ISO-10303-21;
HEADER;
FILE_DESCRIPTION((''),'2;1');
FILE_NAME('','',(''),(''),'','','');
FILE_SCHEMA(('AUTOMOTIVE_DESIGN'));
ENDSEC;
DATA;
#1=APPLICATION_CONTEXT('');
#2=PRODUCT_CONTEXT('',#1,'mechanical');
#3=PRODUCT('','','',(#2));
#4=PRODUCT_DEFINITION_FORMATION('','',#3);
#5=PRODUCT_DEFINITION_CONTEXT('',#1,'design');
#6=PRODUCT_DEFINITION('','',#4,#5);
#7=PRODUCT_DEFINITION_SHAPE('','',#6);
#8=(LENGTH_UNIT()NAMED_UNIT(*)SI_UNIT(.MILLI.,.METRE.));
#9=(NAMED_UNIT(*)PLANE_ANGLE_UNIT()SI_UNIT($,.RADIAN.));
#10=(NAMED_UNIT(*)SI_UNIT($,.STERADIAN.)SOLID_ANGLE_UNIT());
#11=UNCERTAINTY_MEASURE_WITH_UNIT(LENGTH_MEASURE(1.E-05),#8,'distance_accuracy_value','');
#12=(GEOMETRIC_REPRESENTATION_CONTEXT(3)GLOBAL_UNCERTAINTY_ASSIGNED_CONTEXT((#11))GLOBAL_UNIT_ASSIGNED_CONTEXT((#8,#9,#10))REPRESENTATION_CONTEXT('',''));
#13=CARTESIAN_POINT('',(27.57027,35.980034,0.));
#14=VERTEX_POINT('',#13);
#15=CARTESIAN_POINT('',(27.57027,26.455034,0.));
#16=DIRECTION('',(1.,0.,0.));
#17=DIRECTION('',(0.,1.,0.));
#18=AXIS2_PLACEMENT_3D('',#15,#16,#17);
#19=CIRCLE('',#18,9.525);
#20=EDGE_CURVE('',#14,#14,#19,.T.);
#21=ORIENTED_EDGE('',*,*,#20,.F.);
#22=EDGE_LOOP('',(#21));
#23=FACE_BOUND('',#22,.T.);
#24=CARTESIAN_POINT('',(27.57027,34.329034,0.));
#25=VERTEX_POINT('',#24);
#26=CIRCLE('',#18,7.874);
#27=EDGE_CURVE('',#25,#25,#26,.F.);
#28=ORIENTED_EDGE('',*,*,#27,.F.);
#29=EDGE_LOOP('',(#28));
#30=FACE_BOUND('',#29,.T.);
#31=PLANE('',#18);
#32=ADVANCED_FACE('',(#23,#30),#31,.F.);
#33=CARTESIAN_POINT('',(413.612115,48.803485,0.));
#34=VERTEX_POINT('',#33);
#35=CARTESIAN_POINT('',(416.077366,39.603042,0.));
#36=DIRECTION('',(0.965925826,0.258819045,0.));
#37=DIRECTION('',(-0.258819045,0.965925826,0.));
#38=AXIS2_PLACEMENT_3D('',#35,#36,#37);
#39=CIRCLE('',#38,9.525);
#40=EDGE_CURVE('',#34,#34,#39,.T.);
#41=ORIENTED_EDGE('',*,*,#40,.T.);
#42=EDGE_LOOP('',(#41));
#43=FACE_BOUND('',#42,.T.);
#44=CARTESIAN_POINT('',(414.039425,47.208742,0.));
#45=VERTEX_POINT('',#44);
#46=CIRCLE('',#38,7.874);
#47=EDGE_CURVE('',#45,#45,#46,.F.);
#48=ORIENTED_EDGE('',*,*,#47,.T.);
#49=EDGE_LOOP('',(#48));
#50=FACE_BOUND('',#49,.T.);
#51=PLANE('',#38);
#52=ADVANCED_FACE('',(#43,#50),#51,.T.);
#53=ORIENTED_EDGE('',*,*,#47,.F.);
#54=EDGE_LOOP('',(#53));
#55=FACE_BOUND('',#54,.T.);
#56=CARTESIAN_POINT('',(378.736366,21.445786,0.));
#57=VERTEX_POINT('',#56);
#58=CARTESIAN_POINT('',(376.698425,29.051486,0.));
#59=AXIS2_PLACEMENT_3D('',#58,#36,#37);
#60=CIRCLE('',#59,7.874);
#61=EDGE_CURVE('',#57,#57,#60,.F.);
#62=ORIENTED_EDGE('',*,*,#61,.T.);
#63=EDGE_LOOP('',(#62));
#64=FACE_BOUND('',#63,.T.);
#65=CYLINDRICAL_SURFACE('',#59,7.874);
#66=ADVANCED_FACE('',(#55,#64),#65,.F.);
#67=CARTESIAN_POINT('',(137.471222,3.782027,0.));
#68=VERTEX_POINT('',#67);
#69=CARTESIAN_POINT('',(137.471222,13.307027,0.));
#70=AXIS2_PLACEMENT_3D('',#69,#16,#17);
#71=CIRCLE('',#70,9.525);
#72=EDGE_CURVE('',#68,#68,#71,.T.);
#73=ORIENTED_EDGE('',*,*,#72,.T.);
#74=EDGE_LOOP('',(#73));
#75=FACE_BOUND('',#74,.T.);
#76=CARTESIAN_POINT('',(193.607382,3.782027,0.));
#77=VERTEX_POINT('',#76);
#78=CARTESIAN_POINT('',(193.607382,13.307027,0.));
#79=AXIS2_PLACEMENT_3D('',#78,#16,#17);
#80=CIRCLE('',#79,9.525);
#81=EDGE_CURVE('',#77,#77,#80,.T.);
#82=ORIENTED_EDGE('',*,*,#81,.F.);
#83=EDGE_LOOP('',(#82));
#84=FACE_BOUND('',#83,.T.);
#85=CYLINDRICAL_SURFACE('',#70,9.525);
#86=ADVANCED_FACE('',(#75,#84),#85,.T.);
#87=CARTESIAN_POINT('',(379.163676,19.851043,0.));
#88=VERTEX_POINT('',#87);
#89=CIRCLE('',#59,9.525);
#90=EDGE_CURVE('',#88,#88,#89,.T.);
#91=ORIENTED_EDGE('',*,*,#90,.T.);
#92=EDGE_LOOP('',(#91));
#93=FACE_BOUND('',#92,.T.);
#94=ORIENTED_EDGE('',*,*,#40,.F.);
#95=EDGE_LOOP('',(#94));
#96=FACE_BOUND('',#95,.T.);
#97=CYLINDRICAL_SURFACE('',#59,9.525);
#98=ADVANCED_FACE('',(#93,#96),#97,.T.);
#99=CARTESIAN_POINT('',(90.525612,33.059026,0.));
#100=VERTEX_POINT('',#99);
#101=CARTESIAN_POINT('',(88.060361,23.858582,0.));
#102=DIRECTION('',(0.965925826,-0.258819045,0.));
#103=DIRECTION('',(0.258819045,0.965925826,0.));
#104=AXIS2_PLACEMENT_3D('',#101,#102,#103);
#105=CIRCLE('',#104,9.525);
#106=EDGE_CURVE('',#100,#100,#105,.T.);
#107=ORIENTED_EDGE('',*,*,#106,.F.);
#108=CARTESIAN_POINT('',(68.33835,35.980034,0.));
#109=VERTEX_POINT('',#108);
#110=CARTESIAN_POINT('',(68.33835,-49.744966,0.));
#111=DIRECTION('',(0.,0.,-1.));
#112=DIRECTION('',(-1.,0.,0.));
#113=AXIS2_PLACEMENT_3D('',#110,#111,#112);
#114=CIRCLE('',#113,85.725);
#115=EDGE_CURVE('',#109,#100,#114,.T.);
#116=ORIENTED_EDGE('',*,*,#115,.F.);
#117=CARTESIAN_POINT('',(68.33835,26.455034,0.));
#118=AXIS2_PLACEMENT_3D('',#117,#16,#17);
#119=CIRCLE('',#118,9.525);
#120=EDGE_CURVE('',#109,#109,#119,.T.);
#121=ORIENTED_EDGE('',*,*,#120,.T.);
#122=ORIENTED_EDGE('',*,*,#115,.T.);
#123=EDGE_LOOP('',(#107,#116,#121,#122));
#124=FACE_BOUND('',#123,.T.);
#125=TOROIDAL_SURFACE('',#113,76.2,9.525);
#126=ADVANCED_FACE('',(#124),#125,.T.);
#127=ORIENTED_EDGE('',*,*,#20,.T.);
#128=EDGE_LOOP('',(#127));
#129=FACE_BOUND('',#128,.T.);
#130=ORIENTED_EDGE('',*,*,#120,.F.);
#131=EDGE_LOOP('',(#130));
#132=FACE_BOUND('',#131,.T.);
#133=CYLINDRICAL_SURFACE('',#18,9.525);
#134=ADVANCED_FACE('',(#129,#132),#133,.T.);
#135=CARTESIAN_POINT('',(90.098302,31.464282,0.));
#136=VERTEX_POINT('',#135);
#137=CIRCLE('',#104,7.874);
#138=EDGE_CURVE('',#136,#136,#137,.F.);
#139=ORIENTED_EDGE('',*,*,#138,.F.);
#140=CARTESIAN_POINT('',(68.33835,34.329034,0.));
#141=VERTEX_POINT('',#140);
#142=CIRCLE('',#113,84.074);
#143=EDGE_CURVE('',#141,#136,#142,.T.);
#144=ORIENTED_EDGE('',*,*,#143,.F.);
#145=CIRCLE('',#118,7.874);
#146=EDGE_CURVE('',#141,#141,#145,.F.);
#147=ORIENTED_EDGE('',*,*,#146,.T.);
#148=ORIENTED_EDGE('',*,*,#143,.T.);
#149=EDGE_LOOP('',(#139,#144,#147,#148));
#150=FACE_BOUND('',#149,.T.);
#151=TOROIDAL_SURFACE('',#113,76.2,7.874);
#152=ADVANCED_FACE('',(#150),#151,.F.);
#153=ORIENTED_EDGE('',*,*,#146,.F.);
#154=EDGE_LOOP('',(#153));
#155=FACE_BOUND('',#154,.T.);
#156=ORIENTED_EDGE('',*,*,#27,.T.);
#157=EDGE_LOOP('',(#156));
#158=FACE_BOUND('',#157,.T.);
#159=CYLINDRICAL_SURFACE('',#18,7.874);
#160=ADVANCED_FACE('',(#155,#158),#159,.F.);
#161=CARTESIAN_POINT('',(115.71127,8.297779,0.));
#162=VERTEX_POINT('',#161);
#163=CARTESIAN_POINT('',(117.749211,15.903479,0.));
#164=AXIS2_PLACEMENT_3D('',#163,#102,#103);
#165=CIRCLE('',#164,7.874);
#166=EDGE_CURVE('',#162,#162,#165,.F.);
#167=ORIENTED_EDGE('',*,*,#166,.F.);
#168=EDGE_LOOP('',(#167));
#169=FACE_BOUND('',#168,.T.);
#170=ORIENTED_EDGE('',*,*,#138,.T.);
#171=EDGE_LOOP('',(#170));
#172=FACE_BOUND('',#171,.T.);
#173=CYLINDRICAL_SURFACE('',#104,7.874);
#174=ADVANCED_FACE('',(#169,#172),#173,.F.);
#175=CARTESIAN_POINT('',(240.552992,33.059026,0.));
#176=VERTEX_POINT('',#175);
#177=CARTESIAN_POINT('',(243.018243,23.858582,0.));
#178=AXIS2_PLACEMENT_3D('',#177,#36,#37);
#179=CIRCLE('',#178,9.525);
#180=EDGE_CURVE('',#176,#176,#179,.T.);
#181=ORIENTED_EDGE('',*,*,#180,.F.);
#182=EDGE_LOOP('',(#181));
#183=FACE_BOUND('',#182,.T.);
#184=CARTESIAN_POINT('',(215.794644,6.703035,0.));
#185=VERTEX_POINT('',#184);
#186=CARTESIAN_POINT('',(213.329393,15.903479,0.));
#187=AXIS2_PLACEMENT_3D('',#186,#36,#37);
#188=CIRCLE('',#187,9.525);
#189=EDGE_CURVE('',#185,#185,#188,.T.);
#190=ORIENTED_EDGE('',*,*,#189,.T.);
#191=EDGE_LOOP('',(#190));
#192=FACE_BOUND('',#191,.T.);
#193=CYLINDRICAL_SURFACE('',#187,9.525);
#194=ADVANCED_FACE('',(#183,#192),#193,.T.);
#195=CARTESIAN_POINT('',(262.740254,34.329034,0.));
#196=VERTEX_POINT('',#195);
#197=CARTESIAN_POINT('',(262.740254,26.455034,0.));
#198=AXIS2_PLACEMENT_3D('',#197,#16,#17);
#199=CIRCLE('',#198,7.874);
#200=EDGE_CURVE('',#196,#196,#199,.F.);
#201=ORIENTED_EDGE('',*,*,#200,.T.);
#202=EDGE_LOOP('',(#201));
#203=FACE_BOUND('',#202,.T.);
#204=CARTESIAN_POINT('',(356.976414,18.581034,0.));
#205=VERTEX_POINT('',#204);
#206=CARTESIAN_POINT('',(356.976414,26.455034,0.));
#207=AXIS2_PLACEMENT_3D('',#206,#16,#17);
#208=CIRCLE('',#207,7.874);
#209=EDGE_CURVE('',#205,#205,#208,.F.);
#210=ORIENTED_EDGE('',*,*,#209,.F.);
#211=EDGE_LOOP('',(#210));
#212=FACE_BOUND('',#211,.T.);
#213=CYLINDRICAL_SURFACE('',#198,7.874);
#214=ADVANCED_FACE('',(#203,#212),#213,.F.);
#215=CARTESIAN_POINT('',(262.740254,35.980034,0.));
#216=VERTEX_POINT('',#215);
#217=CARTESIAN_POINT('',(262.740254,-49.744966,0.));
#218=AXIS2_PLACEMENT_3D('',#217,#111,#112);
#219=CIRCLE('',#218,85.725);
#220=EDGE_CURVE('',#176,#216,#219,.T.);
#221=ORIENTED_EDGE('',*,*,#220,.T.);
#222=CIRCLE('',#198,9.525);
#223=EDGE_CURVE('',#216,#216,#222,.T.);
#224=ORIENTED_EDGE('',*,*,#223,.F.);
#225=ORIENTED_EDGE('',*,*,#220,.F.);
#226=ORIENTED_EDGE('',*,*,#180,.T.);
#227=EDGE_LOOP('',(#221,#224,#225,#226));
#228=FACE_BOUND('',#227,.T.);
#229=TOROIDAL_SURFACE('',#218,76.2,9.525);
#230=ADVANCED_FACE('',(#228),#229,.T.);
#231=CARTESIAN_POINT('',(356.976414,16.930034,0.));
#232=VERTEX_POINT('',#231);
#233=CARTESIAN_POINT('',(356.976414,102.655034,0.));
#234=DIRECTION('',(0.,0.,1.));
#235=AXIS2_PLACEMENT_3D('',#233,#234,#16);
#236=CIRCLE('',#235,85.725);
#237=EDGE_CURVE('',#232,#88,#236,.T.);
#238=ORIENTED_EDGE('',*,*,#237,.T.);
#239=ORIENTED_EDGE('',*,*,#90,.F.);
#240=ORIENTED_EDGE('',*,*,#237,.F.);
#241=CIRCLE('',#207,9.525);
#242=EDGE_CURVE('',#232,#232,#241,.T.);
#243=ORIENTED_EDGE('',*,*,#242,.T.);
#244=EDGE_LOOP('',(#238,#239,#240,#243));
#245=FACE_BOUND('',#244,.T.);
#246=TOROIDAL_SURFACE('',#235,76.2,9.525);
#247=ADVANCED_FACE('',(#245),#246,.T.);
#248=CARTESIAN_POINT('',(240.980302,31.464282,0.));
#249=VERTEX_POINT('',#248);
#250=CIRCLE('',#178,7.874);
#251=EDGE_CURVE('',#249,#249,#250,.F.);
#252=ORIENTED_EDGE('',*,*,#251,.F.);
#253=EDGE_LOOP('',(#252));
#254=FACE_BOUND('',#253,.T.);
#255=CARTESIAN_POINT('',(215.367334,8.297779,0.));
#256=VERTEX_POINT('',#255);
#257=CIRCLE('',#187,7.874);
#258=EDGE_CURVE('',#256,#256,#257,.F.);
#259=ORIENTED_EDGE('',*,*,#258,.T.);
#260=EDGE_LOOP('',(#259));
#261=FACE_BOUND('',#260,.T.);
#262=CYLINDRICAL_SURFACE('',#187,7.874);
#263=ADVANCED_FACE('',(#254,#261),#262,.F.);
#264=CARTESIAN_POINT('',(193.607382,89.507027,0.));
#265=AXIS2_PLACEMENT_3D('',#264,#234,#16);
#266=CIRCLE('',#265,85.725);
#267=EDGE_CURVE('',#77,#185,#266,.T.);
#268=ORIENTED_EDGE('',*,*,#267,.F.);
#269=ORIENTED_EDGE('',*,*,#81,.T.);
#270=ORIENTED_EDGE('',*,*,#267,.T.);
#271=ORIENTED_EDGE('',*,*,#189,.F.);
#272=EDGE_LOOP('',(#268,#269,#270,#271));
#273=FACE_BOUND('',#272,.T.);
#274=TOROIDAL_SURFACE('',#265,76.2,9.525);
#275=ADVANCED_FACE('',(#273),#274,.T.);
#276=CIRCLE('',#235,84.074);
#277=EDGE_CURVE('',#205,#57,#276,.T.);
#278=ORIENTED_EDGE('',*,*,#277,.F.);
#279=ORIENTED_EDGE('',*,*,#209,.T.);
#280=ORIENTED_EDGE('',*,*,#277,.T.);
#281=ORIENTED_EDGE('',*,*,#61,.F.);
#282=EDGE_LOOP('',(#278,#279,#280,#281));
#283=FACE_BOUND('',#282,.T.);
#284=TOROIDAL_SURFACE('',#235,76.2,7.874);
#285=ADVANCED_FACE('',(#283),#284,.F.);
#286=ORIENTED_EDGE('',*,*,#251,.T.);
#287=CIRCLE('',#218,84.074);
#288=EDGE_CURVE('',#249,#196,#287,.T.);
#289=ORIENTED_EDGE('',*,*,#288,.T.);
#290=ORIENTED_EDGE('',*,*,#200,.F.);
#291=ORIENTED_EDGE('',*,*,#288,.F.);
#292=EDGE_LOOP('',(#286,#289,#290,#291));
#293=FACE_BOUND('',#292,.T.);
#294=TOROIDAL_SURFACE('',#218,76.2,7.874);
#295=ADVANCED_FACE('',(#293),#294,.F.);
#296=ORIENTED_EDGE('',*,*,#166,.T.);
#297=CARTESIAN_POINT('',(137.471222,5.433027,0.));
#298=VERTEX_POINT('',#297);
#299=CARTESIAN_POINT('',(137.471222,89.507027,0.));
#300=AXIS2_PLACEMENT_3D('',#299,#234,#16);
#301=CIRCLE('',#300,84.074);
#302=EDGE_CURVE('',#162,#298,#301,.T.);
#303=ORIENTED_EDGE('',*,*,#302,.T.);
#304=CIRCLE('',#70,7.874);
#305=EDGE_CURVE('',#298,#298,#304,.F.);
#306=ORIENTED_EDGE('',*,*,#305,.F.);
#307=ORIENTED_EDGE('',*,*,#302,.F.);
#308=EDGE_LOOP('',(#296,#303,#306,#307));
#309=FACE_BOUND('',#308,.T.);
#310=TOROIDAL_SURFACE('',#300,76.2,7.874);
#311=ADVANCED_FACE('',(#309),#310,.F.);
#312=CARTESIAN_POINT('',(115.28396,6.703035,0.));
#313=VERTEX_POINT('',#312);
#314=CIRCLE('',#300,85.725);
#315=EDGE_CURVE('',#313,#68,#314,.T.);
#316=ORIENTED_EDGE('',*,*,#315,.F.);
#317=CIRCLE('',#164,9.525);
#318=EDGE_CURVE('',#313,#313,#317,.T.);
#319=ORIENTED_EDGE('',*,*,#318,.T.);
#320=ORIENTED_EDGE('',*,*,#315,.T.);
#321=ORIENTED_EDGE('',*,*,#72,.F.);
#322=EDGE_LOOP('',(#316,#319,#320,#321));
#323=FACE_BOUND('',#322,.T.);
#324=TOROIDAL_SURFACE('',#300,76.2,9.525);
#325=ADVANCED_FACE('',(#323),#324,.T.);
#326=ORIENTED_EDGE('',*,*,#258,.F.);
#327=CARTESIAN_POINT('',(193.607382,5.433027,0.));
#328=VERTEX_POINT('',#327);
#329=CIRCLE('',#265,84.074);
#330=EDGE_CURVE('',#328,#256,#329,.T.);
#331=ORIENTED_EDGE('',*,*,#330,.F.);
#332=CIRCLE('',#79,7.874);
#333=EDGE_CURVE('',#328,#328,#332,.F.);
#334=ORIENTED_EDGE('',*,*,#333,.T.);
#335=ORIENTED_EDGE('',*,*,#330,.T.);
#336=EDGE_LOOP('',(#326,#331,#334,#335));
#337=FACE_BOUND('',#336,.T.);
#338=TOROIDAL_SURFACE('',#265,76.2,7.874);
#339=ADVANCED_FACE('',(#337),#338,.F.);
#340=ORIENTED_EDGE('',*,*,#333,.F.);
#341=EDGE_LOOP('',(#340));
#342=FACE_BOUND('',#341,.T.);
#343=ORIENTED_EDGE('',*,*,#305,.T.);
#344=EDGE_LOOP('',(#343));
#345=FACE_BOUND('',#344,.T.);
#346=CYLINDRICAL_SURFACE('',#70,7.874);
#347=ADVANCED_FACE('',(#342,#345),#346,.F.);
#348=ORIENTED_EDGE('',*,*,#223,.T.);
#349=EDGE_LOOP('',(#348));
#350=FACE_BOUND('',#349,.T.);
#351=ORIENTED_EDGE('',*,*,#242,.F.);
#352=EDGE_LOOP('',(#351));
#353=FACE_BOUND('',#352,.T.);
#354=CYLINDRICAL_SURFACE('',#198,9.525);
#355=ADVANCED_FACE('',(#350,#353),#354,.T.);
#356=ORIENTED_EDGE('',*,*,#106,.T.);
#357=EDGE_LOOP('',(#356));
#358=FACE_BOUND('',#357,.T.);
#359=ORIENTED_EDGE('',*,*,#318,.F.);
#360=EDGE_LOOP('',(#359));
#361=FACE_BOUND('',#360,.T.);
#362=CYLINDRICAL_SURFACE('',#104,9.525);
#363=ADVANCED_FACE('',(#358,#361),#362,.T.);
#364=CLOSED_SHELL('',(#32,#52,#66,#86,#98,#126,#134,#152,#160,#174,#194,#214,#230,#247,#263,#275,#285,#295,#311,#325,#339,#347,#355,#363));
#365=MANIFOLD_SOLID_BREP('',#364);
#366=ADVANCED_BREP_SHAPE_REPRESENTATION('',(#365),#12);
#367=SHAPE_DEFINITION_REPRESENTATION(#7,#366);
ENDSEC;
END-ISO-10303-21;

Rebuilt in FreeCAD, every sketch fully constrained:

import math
import FreeCAD as App
import Part
import Sketcher

V = App.Vector
Q = App.Units.Quantity

doc = App.newDocument("Part")
body = doc.addObject("PartDesign::Body", "Body")

# Sketch on YZ plane
sketch1 = body.newObject("Sketcher::SketchObject", "Sketch")
sketch1.AttachmentSupport = (doc.getObject("YZ_Plane"), [""])
sketch1.MapMode = "FlatFace"
sketch1.AttachmentOffset = App.Placement(V(0, 0, 27.57027), App.Rotation())
sketch1.addGeometry([
    Part.Circle(V(26, 0, 0), V(0, 0, 1), 10),
    Part.Circle(V(26, 0, 0), V(0, 0, 1), 8),
], False)
sketch1.addConstraint([
    Sketcher.Constraint("Coincident", 1, 3, 0, 3),
    Sketcher.Constraint("PointOnObject", 0, 3, -1),
    Sketcher.Constraint("Diameter", 0, Q("0.75 in")),
    Sketcher.Constraint("Diameter", 1, Q("0.62 in")),
    Sketcher.Constraint("DistanceX", -1, 1, 0, 3, 26.455034),
])

# Sketch on XY plane
sketch2 = body.newObject("Sketcher::SketchObject", "Sketch001")
sketch2.AttachmentSupport = (doc.getObject("XY_Plane"), [""])
sketch2.MapMode = "FlatFace"
sketch2.addGeometry([
    Part.LineSegment(V(28, 26, 0), V(68, 26, 0)),  # 0
    Part.ArcOfCircle(Part.Circle(V(68, -50, 0), V(0, 0, 1), 76), math.radians(75), math.radians(90)),  # 1
    Part.LineSegment(V(88, 24, 0), V(118, 16, 0)),  # 2
    Part.ArcOfCircle(Part.Circle(V(137, 90, 0), V(0, 0, 1), 76), math.radians(-105), math.radians(-90)),  # 3
    Part.LineSegment(V(137, 13, 0), V(194, 13, 0)),  # 4
    Part.ArcOfCircle(Part.Circle(V(194, 90, 0), V(0, 0, 1), 76), math.radians(-90), math.radians(-75)),  # 5
    Part.LineSegment(V(213, 16, 0), V(243, 24, 0)),  # 6
    Part.ArcOfCircle(Part.Circle(V(263, -50, 0), V(0, 0, 1), 76), math.radians(90), math.radians(105)),  # 7
    Part.LineSegment(V(263, 26, 0), V(357, 26, 0)),  # 8
    Part.ArcOfCircle(Part.Circle(V(357, 103, 0), V(0, 0, 1), 76), math.radians(-90), math.radians(-75)),  # 9
    Part.LineSegment(V(377, 29, 0), V(416, 40, 0)),  # 10
], False)
sketch2.addConstraint([
    Sketcher.Constraint("Tangent", 0, 2, 1, 2),
    Sketcher.Constraint("Tangent", 1, 1, 2, 1),
    Sketcher.Constraint("Tangent", 2, 2, 3, 1),
    Sketcher.Constraint("Tangent", 3, 2, 4, 1),
    Sketcher.Constraint("Tangent", 4, 2, 5, 1),
    Sketcher.Constraint("Tangent", 5, 2, 6, 1),
    Sketcher.Constraint("Tangent", 6, 2, 7, 2),
    Sketcher.Constraint("Tangent", 7, 1, 8, 1),
    Sketcher.Constraint("Tangent", 8, 2, 9, 1),
    Sketcher.Constraint("Tangent", 9, 2, 10, 1),
    Sketcher.Constraint("Horizontal", 0),
    Sketcher.Constraint("Horizontal", 4),
    Sketcher.Constraint("Horizontal", 8),
    Sketcher.Constraint("Equal", 1, 3),
    Sketcher.Constraint("Equal", 3, 5),
    Sketcher.Constraint("Equal", 5, 7),
    Sketcher.Constraint("Equal", 7, 9),
    Sketcher.Constraint("Parallel", 6, 10),
    Sketcher.Constraint("Horizontal", 1, 3, 7, 3),
    Sketcher.Constraint("Horizontal", 2, 2, 5, 2),
    Sketcher.Constraint("Radius", 1, Q("3 in")),
    Sketcher.Constraint("Angle", 2, Q("-15 deg")),
    Sketcher.Constraint("DistanceX", 0, 1, 0, 2, 40.76808),
    Sketcher.Constraint("DistanceX", 4, 1, 4, 2, 56.136159),
    Sketcher.Constraint("DistanceX", 8, 1, 8, 2, 94.236159),
    Sketcher.Constraint("Distance", 2, 30.736159),
    Sketcher.Constraint("Distance", 10, 40.76808),
    Sketcher.Constraint("DistanceX", -1, 1, 1, 3, 68.33835),
    Sketcher.Constraint("DistanceY", -1, 1, 2, 2, 15.903479),
])
doc.recompute()

additivepipe = body.newObject("PartDesign::AdditivePipe", "AdditivePipe")
additivepipe.Profile = sketch1
additivepipe.Spine = (sketch2, ["Edge1", "Edge2", "Edge3", "Edge4", "Edge5", "Edge6", "Edge7", "Edge8", "Edge9", "Edge10", "Edge11"])

doc.recompute()
